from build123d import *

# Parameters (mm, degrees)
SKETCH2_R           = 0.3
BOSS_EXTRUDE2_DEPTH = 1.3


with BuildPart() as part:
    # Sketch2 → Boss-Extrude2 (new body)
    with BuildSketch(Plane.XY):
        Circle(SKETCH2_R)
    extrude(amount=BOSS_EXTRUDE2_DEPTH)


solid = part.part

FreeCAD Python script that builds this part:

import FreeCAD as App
import Part
import Sketcher
from FreeCAD import Vector

doc = App.newDocument("Part")
body = doc.addObject("PartDesign::Body", "Body")

# Sketch on XY plane
sketch1 = body.newObject("Sketcher::SketchObject", "Sketch")
sketch1.AttachmentSupport = (doc.getObject("XY_Plane"), [""])
sketch1.MapMode = "FlatFace"
sketch1.addGeometry(Part.Circle(Vector(0, 0, 0), Vector(0, 0, 1), 0.3), False)
sketch1.addConstraint([
    Sketcher.Constraint("Coincident", 0, 3, -1, 1),
    Sketcher.Constraint("Diameter", 0, 0.6),
])
pad1 = body.newObject("PartDesign::Pad", "Pad")
pad1.Profile = sketch1
pad1.Length = 1.3

doc.recompute()
